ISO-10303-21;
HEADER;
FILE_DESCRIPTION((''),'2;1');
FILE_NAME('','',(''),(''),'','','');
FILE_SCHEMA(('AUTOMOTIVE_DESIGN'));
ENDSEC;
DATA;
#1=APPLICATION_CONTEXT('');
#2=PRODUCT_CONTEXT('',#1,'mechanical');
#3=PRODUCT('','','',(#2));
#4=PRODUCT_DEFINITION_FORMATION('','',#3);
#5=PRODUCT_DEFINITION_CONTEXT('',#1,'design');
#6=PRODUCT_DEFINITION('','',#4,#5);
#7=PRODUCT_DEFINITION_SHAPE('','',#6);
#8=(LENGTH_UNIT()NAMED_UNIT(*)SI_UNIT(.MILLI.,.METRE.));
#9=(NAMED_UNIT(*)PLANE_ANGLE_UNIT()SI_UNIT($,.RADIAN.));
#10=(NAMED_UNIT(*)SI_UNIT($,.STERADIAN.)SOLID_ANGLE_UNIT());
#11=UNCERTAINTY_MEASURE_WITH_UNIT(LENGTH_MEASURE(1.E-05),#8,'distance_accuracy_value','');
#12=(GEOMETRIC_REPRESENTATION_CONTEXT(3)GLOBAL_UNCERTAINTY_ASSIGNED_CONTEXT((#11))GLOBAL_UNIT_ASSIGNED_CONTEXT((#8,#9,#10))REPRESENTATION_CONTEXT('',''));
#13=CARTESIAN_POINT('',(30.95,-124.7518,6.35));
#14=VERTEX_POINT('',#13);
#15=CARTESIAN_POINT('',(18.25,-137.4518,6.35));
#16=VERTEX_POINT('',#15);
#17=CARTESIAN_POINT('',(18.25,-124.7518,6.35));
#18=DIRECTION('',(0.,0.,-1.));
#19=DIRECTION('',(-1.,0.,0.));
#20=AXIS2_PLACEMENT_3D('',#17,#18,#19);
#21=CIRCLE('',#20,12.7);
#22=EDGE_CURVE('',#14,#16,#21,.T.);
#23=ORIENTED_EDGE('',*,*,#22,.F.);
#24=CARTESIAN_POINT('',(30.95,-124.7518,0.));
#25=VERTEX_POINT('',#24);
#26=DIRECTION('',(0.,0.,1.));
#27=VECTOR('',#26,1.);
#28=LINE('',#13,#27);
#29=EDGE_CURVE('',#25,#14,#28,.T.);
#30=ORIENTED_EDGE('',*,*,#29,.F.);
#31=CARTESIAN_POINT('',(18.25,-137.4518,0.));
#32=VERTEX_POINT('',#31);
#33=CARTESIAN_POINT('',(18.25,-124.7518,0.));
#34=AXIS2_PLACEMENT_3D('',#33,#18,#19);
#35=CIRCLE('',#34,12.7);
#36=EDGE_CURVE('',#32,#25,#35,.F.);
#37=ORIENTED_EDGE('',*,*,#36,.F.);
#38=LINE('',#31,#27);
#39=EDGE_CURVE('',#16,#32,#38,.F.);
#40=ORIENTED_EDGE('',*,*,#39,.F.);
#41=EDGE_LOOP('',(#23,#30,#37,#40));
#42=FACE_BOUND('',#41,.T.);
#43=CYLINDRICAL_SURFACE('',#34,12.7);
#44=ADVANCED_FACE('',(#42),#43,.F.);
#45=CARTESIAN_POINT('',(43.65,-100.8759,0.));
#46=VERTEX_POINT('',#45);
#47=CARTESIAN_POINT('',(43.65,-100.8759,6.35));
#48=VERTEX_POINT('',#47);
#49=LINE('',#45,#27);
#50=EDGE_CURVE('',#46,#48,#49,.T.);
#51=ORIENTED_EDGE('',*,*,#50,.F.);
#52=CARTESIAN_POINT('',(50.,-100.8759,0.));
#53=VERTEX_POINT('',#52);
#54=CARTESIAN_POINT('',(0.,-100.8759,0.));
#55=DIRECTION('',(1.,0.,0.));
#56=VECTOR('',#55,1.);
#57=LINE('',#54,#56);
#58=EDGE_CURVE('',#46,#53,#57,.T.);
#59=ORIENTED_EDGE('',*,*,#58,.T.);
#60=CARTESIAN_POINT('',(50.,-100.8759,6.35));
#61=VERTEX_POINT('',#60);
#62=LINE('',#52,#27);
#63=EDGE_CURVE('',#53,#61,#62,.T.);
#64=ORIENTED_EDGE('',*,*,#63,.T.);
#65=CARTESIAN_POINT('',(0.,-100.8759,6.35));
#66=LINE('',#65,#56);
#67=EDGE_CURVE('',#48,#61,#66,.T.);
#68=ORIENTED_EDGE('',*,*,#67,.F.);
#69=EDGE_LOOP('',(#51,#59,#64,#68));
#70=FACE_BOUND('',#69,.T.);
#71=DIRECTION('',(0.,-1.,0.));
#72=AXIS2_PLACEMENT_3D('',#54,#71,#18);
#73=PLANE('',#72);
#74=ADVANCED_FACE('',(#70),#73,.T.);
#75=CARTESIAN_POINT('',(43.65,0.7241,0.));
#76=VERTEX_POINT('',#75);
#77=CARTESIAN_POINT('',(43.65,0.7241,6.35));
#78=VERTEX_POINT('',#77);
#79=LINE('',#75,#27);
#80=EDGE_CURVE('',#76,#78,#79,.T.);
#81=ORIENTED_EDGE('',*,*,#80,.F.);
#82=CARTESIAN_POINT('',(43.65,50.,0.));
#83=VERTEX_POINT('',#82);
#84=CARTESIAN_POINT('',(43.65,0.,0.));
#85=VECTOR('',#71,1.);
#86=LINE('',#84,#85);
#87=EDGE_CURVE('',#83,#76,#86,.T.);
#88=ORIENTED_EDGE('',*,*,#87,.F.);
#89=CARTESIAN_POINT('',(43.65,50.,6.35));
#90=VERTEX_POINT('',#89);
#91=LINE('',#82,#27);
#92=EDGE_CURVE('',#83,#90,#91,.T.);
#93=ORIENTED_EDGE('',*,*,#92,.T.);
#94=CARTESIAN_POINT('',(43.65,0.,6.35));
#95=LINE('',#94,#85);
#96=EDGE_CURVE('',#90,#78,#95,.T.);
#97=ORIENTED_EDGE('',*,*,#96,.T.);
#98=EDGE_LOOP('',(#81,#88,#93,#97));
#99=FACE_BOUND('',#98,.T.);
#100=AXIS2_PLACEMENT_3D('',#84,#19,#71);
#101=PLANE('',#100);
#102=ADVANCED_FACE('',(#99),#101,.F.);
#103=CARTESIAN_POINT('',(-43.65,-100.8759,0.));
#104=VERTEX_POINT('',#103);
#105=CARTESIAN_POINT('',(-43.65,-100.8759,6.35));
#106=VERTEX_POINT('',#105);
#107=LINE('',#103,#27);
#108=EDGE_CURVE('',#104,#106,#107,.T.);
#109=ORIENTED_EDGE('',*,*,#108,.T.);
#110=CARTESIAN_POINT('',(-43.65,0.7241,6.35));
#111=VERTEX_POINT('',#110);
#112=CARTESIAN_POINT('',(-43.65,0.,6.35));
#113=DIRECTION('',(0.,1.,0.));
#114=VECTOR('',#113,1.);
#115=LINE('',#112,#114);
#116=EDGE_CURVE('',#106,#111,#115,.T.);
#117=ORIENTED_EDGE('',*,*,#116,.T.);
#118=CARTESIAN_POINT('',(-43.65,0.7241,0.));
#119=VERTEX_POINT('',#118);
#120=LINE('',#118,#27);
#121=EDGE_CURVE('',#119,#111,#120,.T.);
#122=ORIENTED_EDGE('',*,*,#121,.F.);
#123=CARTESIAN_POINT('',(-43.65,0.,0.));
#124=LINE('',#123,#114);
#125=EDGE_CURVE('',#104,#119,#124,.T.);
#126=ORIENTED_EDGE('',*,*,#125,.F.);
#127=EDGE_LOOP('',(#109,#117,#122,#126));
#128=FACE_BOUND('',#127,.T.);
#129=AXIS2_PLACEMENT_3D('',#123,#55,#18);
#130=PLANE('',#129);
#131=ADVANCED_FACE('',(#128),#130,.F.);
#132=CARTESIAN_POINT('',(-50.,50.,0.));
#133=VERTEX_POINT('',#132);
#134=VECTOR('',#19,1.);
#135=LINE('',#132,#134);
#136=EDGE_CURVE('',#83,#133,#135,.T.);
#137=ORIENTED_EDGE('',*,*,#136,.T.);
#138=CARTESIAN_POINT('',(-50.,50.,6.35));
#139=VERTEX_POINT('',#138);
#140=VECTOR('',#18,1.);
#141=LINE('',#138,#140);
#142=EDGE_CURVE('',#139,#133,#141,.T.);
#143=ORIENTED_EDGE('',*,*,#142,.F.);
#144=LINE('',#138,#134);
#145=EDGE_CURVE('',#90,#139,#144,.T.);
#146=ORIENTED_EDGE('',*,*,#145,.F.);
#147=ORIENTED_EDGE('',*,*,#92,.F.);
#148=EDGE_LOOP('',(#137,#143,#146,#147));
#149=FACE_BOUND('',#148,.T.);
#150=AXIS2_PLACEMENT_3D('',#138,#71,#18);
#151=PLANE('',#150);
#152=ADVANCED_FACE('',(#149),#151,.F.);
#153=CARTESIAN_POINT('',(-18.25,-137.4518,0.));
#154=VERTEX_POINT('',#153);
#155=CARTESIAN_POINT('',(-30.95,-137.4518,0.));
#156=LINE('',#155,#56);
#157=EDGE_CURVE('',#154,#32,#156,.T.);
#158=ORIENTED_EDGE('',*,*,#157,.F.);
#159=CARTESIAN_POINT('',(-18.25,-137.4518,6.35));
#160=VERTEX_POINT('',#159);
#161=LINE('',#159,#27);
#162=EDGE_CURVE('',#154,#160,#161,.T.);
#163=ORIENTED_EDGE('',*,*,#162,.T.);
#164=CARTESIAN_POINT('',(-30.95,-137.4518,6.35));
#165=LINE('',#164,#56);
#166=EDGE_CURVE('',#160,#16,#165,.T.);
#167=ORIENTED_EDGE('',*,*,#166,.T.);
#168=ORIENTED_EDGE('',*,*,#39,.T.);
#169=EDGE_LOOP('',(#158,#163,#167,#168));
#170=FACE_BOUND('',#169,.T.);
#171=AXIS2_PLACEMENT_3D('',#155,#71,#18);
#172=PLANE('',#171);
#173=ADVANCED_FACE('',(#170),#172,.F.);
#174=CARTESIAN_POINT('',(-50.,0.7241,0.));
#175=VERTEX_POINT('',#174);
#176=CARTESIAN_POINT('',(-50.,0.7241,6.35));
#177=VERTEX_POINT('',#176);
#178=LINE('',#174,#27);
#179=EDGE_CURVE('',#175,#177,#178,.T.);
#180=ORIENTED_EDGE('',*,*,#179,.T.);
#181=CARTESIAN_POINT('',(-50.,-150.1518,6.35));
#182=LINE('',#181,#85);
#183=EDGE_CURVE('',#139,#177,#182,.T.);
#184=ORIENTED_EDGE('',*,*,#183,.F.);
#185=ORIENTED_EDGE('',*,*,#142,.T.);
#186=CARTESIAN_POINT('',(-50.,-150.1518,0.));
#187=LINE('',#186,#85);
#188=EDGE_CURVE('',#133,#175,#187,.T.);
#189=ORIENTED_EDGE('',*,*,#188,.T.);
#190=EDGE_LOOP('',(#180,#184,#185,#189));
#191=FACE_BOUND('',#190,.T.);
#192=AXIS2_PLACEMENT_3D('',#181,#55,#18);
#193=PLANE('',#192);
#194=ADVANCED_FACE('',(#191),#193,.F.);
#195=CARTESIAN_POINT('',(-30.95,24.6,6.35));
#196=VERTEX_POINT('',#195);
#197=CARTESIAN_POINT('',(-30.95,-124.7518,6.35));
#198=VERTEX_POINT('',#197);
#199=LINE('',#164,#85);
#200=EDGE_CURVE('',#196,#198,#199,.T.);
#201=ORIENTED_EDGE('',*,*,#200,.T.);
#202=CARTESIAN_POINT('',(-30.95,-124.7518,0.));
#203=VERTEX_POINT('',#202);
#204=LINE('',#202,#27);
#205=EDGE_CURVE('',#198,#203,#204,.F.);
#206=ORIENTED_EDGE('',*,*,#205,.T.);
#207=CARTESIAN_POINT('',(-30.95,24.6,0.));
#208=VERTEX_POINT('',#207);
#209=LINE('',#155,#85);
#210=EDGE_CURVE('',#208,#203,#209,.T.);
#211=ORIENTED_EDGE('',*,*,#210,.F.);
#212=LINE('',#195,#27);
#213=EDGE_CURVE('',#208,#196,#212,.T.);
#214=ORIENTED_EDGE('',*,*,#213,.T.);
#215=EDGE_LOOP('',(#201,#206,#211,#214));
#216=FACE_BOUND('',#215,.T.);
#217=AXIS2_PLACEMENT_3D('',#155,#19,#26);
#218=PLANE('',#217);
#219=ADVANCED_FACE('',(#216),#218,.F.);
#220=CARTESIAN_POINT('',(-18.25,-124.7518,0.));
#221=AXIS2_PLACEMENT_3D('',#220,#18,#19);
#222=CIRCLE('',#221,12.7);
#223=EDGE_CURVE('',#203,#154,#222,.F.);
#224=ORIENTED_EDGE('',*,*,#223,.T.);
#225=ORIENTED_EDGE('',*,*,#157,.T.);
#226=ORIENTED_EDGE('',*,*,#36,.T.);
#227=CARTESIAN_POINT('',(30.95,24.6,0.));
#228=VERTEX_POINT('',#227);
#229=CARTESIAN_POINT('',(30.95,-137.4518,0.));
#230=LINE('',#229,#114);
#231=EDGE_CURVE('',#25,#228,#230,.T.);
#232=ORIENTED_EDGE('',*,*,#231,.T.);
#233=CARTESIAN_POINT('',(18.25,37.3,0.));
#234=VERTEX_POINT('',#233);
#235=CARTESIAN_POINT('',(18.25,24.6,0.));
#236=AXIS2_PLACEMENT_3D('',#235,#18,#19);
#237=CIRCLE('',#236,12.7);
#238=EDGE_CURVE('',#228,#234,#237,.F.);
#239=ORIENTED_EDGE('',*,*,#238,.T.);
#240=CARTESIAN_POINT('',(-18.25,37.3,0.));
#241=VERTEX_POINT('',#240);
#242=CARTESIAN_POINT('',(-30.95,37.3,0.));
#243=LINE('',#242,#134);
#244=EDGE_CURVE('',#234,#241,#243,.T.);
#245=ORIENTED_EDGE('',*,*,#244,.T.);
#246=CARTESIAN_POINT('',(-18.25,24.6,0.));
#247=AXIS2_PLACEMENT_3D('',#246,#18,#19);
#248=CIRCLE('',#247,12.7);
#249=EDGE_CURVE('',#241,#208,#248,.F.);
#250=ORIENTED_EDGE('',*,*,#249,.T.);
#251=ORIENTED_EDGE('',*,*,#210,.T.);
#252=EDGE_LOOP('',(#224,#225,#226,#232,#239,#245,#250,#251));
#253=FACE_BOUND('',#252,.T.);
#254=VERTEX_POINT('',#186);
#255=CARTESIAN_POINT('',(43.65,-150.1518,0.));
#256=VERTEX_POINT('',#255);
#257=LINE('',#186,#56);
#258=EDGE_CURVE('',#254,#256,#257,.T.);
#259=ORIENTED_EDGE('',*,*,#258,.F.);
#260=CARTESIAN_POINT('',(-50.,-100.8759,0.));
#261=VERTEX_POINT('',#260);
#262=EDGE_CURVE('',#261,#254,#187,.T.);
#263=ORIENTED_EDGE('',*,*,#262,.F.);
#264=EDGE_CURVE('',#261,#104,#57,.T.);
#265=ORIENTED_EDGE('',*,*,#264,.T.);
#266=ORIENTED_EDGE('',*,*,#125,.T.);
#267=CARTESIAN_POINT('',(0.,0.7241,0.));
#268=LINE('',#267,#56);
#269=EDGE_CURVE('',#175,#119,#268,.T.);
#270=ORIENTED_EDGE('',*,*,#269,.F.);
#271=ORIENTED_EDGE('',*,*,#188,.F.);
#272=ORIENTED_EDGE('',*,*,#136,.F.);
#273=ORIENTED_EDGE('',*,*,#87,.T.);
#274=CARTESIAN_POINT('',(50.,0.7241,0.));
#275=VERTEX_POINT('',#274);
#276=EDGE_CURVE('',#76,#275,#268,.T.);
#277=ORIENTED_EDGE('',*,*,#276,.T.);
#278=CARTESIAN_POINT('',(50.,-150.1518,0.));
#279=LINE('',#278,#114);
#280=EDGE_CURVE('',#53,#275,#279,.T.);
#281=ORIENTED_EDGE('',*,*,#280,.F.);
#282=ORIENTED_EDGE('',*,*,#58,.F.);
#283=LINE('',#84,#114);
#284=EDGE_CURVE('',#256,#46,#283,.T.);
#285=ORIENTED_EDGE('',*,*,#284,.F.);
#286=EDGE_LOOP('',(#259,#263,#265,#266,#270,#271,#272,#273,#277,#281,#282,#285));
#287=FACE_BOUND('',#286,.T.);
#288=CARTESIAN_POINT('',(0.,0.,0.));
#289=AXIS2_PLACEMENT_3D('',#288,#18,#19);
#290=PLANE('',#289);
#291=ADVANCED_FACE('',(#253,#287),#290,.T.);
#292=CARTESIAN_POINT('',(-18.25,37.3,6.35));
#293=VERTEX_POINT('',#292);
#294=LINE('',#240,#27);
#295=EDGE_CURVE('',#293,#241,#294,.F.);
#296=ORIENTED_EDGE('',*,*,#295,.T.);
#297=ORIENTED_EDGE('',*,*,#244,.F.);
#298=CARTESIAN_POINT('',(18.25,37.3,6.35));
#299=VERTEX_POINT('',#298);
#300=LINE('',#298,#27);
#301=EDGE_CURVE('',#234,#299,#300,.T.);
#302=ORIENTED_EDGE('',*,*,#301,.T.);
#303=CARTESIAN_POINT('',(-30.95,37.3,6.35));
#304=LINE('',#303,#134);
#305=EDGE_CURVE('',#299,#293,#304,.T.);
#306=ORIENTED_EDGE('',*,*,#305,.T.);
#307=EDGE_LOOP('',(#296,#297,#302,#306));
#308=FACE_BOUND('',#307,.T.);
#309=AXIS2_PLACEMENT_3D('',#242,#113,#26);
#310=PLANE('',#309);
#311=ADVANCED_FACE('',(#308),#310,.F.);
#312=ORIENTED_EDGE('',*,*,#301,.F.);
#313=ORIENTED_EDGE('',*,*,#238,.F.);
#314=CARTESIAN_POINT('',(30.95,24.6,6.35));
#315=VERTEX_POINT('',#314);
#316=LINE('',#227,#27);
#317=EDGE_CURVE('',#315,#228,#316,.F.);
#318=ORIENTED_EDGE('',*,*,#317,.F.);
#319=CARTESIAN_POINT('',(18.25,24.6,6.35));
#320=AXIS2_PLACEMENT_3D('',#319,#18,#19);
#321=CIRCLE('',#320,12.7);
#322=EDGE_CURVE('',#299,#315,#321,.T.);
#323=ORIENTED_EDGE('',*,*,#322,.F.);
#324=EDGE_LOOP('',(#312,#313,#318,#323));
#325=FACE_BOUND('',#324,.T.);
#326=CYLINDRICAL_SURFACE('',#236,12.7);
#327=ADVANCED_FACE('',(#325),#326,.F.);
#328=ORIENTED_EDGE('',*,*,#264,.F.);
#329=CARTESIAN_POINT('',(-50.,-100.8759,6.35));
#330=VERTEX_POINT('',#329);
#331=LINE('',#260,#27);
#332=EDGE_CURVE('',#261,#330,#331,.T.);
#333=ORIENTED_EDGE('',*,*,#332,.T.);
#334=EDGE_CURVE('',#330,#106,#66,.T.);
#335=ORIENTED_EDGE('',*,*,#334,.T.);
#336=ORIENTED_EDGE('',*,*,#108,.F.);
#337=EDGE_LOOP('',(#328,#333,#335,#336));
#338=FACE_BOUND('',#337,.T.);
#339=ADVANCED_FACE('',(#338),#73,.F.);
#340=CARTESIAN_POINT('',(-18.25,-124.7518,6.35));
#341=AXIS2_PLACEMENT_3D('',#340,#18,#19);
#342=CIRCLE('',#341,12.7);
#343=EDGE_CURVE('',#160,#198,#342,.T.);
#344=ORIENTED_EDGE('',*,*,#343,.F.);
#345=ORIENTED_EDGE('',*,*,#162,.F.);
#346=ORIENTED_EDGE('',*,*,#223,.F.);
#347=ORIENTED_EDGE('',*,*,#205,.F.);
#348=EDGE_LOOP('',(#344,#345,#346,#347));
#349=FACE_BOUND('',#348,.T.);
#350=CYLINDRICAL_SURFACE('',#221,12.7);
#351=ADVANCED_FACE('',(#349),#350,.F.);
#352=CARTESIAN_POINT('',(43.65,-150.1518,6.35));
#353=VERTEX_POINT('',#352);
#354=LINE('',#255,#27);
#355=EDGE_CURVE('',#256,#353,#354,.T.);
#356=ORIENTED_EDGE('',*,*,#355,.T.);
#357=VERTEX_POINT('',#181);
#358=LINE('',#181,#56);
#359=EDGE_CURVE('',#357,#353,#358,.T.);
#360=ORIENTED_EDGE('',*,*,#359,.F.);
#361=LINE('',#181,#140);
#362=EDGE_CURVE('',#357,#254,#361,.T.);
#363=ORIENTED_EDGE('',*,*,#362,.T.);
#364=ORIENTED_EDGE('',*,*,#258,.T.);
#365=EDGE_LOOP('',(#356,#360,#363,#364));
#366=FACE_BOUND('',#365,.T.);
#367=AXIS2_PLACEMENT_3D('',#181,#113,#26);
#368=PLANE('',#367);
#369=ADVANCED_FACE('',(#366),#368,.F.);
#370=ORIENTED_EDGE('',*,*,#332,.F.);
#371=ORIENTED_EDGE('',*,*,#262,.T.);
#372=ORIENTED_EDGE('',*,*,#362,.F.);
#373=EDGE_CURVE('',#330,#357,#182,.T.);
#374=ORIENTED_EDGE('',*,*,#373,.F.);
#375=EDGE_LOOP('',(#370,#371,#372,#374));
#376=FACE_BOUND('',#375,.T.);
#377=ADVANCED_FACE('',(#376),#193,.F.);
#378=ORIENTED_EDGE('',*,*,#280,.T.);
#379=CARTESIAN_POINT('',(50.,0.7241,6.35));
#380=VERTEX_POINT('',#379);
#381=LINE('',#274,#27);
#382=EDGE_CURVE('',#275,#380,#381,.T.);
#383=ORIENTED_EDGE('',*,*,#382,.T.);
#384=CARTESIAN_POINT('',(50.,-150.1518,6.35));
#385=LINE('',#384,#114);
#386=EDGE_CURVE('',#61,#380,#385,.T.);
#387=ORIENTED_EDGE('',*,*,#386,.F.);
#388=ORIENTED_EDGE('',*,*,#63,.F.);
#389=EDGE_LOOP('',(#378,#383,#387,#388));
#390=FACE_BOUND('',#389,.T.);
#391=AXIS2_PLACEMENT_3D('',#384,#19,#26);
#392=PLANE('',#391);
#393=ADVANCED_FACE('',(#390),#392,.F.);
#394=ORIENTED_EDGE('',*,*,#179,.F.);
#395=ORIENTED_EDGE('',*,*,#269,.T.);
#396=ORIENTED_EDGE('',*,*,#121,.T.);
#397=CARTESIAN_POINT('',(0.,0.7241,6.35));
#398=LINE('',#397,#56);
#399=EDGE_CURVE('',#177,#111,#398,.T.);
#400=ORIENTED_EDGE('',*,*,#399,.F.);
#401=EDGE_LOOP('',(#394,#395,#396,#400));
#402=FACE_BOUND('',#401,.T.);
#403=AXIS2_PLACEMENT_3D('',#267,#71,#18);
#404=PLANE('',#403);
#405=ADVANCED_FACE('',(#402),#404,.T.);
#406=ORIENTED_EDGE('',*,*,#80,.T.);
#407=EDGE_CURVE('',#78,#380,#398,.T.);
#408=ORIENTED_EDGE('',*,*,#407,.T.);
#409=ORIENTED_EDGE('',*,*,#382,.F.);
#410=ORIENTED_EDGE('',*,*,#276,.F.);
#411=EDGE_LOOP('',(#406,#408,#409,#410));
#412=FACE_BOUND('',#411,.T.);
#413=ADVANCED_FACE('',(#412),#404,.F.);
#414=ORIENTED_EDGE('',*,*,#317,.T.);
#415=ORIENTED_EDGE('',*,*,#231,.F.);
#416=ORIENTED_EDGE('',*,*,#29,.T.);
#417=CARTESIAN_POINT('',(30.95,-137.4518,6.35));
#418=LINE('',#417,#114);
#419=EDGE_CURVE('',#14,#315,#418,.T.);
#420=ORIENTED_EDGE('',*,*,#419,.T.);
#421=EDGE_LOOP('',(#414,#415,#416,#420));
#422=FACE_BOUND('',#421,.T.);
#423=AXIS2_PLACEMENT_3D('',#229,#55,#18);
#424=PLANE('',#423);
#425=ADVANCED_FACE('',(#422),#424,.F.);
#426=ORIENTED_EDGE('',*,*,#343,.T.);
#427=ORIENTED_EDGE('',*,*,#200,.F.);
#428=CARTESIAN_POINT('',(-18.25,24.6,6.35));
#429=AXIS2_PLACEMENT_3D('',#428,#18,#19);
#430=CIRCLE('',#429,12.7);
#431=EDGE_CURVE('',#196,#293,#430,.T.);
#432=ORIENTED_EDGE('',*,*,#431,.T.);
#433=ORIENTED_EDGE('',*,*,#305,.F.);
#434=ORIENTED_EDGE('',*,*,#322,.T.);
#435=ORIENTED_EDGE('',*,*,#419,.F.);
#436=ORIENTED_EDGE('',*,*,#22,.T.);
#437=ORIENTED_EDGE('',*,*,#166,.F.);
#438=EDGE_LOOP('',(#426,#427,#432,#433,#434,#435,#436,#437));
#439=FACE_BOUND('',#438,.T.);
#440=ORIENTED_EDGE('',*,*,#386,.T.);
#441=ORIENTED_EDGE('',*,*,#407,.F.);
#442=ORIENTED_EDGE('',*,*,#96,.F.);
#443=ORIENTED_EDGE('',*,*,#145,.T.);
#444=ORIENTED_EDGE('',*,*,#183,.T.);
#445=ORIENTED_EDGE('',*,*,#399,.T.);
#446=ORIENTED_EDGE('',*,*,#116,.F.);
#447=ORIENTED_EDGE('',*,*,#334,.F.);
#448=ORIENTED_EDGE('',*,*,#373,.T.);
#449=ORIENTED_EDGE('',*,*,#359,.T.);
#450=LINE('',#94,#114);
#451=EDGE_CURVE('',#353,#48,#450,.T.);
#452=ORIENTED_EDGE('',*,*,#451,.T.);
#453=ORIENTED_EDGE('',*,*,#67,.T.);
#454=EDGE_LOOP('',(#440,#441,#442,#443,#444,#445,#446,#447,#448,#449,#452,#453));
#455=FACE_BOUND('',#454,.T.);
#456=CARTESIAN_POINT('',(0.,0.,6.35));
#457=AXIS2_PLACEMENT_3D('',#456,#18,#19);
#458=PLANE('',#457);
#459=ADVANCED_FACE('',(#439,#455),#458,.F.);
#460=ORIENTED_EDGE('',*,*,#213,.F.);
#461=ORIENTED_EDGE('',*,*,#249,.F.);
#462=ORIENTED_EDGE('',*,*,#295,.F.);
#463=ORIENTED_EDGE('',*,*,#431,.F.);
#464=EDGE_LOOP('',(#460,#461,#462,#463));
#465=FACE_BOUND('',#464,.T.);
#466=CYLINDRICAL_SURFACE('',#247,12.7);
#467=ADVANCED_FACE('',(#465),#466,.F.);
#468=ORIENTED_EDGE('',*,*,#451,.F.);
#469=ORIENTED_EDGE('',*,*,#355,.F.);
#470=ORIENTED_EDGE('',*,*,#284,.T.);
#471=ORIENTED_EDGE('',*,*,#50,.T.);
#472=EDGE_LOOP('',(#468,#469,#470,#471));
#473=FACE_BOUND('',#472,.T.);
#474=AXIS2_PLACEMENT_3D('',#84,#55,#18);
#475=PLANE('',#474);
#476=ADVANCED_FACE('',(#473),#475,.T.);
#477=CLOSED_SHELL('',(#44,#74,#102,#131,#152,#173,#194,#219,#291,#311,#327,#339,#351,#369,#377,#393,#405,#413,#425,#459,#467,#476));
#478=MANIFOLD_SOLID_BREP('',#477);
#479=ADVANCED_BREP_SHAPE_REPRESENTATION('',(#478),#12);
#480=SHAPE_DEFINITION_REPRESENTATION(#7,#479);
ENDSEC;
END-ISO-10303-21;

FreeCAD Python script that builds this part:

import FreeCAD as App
import Part
import Sketcher
from FreeCAD import Vector
Q = App.Units.Quantity


def edges_at(feature, points):
    """Names of the edges that pass closest to the given points."""
    edges = feature.Shape.Edges
    near = lambda p: min(range(len(edges)), key=lambda i: edges[i].distToShape(Part.Vertex(*p))[0])
    return sorted({f"Edge{near(p) + 1}" for p in points})


def add_polygon(sketch, points):
    """Adds a closed chain of lines whose ends are joined by coincident constraints."""
    first, n = sketch.GeometryCount, len(points)
    for a, b in zip(points, points[1:] + points[:1]):
        sketch.addGeometry(Part.LineSegment(App.Vector(*a, 0), App.Vector(*b, 0)), False)
    for i in range(n):
        sketch.addConstraint(Sketcher.Constraint("Coincident", first + i, 2, first + (i + 1) % n, 1))

doc = App.newDocument("Part")
body = doc.addObject("PartDesign::Body", "Body")

sketch1 = doc.addObject("Sketcher::SketchObject", "Sketch")
body.addObject(sketch1)
sketch1.AttachmentSupport = (doc.XY_Plane, [""])
sketch1.MapMode = "FlatFace"
add_polygon(sketch1, [(-50, 50), (-50, -150), (50, -150), (50, 50)])
sketch1.addConstraint([
    Sketcher.Constraint("Vertical", 0),
    Sketcher.Constraint("Horizontal", 1),
    Sketcher.Constraint("Vertical", 2),
    Sketcher.Constraint("Horizontal", 3),
    Sketcher.Constraint("DistanceX", 1, 1, 1, 2, 100.0),
    Sketcher.Constraint("DistanceY", 0, 2, 0, 1, 200.1518),
    Sketcher.Constraint("DistanceX", 0, 2, -1, 1, 50.0),
    Sketcher.Constraint("DistanceY", 0, 2, -1, 1, 150.1518),
])
pad1 = doc.addObject("PartDesign::Pad", "Pad")
body.addObject(pad1)
pad1.Profile = sketch1
pad1.Length = Q("0.25 in")

sketch2 = doc.addObject("Sketcher::SketchObject", "Sketch001")
body.addObject(sketch2)
sketch2.AttachmentSupport = (doc.XY_Plane, [""])
sketch2.MapMode = "FlatFace"
sketch2.AttachmentOffset = App.Placement(Vector(0, 0, 0.25 * 25.4), App.Rotation())
add_polygon(sketch2, [(-50, 1), (-50, -101), (-44, -101), (-44, 1)])
add_polygon(sketch2, [(44, 50), (44, 1), (50, 1), (50, 50)])
add_polygon(sketch2, [(44, -101), (44, -150), (50, -150), (50, -101)])
sketch2.addConstraint([
    Sketcher.Constraint("Vertical", 0),
    Sketcher.Constraint("Horizontal", 1),
    Sketcher.Constraint("Vertical", 2),
    Sketcher.Constraint("Horizontal", 3),
    Sketcher.Constraint("Vertical", 4),
    Sketcher.Constraint("Horizontal", 5),
    Sketcher.Constraint("Vertical", 6),
    Sketcher.Constraint("Horizontal", 7),
    Sketcher.Constraint("Vertical", 8),
    Sketcher.Constraint("Horizontal", 9),
    Sketcher.Constraint("Vertical", 10),
    Sketcher.Constraint("Horizontal", 11),
    Sketcher.Constraint("Symmetric", 2, 2, 4, 2, -2),
    Sketcher.Constraint("Symmetric", 0, 2, 10, 2, -2),
    Sketcher.Constraint("Vertical", 7, 2, 8, 2),
    Sketcher.Constraint("Vertical", 6, 2, 9, 2),
    Sketcher.Constraint("Equal", 6, 8),
    Sketcher.Constraint("DistanceY", 0, 2, 0, 1, Q("4 in")),
    Sketcher.Constraint("DistanceX", 1, 1, 1, 2, Q("0.25 in")),
    Sketcher.Constraint("DistanceY", 4, 2, 4, 1, 49.2759),
    Sketcher.Constraint("DistanceX", 0, 2, -1, 1, 50.0),
    Sketcher.Constraint("DistanceY", 0, 2, -1, 1, 100.8759),
])
pocket1 = doc.addObject("PartDesign::Pocket", "Pocket")
body.addObject(pocket1)
pocket1.Profile = sketch2
pocket1.Length = Q("0.25 in")

sketch3 = doc.addObject("Sketcher::SketchObject", "Sketch002")
body.addObject(sketch3)
sketch3.AttachmentSupport = (doc.XY_Plane, [""])
sketch3.MapMode = "FlatFace"
sketch3.AttachmentOffset = App.Placement(Vector(0, 0, 0.25 * 25.4), App.Rotation())
add_polygon(sketch3, [(-31, 37), (-31, -137), (31, -137), (31, 37)])
sketch3.addConstraint([
    Sketcher.Constraint("Vertical", 0),
    Sketcher.Constraint("Horizontal", 1),
    Sketcher.Constraint("Vertical", 2),
    Sketcher.Constraint("Horizontal", 3),
    Sketcher.Constraint("DistanceX", 1, 1, 1, 2, 61.9),
    Sketcher.Constraint("DistanceY", 0, 2, 0, 1, 174.7518),
    Sketcher.Constraint("DistanceX", 0, 2, -1, 1, 30.95),
    Sketcher.Constraint("DistanceY", 0, 2, -1, 1, 137.4518),
])
pocket2 = doc.addObject("PartDesign::Pocket", "Pocket001")
body.addObject(pocket2)
pocket2.Profile = sketch3
pocket2.Length = Q("0.25 in")
doc.recompute()

fillet = doc.addObject("PartDesign::Fillet", "Fillet")
body.addObject(fillet)
fillet.Base = (pocket2, edges_at(pocket2, [
    (-30.95, -137.452, 3.175),
    (-30.95, 37.3, 3.175),
    (30.95, 37.3, 3.175),
    (30.95, -137.452, 3.175),
]))
fillet.Radius = Q("0.5 in")

doc.recompute()
